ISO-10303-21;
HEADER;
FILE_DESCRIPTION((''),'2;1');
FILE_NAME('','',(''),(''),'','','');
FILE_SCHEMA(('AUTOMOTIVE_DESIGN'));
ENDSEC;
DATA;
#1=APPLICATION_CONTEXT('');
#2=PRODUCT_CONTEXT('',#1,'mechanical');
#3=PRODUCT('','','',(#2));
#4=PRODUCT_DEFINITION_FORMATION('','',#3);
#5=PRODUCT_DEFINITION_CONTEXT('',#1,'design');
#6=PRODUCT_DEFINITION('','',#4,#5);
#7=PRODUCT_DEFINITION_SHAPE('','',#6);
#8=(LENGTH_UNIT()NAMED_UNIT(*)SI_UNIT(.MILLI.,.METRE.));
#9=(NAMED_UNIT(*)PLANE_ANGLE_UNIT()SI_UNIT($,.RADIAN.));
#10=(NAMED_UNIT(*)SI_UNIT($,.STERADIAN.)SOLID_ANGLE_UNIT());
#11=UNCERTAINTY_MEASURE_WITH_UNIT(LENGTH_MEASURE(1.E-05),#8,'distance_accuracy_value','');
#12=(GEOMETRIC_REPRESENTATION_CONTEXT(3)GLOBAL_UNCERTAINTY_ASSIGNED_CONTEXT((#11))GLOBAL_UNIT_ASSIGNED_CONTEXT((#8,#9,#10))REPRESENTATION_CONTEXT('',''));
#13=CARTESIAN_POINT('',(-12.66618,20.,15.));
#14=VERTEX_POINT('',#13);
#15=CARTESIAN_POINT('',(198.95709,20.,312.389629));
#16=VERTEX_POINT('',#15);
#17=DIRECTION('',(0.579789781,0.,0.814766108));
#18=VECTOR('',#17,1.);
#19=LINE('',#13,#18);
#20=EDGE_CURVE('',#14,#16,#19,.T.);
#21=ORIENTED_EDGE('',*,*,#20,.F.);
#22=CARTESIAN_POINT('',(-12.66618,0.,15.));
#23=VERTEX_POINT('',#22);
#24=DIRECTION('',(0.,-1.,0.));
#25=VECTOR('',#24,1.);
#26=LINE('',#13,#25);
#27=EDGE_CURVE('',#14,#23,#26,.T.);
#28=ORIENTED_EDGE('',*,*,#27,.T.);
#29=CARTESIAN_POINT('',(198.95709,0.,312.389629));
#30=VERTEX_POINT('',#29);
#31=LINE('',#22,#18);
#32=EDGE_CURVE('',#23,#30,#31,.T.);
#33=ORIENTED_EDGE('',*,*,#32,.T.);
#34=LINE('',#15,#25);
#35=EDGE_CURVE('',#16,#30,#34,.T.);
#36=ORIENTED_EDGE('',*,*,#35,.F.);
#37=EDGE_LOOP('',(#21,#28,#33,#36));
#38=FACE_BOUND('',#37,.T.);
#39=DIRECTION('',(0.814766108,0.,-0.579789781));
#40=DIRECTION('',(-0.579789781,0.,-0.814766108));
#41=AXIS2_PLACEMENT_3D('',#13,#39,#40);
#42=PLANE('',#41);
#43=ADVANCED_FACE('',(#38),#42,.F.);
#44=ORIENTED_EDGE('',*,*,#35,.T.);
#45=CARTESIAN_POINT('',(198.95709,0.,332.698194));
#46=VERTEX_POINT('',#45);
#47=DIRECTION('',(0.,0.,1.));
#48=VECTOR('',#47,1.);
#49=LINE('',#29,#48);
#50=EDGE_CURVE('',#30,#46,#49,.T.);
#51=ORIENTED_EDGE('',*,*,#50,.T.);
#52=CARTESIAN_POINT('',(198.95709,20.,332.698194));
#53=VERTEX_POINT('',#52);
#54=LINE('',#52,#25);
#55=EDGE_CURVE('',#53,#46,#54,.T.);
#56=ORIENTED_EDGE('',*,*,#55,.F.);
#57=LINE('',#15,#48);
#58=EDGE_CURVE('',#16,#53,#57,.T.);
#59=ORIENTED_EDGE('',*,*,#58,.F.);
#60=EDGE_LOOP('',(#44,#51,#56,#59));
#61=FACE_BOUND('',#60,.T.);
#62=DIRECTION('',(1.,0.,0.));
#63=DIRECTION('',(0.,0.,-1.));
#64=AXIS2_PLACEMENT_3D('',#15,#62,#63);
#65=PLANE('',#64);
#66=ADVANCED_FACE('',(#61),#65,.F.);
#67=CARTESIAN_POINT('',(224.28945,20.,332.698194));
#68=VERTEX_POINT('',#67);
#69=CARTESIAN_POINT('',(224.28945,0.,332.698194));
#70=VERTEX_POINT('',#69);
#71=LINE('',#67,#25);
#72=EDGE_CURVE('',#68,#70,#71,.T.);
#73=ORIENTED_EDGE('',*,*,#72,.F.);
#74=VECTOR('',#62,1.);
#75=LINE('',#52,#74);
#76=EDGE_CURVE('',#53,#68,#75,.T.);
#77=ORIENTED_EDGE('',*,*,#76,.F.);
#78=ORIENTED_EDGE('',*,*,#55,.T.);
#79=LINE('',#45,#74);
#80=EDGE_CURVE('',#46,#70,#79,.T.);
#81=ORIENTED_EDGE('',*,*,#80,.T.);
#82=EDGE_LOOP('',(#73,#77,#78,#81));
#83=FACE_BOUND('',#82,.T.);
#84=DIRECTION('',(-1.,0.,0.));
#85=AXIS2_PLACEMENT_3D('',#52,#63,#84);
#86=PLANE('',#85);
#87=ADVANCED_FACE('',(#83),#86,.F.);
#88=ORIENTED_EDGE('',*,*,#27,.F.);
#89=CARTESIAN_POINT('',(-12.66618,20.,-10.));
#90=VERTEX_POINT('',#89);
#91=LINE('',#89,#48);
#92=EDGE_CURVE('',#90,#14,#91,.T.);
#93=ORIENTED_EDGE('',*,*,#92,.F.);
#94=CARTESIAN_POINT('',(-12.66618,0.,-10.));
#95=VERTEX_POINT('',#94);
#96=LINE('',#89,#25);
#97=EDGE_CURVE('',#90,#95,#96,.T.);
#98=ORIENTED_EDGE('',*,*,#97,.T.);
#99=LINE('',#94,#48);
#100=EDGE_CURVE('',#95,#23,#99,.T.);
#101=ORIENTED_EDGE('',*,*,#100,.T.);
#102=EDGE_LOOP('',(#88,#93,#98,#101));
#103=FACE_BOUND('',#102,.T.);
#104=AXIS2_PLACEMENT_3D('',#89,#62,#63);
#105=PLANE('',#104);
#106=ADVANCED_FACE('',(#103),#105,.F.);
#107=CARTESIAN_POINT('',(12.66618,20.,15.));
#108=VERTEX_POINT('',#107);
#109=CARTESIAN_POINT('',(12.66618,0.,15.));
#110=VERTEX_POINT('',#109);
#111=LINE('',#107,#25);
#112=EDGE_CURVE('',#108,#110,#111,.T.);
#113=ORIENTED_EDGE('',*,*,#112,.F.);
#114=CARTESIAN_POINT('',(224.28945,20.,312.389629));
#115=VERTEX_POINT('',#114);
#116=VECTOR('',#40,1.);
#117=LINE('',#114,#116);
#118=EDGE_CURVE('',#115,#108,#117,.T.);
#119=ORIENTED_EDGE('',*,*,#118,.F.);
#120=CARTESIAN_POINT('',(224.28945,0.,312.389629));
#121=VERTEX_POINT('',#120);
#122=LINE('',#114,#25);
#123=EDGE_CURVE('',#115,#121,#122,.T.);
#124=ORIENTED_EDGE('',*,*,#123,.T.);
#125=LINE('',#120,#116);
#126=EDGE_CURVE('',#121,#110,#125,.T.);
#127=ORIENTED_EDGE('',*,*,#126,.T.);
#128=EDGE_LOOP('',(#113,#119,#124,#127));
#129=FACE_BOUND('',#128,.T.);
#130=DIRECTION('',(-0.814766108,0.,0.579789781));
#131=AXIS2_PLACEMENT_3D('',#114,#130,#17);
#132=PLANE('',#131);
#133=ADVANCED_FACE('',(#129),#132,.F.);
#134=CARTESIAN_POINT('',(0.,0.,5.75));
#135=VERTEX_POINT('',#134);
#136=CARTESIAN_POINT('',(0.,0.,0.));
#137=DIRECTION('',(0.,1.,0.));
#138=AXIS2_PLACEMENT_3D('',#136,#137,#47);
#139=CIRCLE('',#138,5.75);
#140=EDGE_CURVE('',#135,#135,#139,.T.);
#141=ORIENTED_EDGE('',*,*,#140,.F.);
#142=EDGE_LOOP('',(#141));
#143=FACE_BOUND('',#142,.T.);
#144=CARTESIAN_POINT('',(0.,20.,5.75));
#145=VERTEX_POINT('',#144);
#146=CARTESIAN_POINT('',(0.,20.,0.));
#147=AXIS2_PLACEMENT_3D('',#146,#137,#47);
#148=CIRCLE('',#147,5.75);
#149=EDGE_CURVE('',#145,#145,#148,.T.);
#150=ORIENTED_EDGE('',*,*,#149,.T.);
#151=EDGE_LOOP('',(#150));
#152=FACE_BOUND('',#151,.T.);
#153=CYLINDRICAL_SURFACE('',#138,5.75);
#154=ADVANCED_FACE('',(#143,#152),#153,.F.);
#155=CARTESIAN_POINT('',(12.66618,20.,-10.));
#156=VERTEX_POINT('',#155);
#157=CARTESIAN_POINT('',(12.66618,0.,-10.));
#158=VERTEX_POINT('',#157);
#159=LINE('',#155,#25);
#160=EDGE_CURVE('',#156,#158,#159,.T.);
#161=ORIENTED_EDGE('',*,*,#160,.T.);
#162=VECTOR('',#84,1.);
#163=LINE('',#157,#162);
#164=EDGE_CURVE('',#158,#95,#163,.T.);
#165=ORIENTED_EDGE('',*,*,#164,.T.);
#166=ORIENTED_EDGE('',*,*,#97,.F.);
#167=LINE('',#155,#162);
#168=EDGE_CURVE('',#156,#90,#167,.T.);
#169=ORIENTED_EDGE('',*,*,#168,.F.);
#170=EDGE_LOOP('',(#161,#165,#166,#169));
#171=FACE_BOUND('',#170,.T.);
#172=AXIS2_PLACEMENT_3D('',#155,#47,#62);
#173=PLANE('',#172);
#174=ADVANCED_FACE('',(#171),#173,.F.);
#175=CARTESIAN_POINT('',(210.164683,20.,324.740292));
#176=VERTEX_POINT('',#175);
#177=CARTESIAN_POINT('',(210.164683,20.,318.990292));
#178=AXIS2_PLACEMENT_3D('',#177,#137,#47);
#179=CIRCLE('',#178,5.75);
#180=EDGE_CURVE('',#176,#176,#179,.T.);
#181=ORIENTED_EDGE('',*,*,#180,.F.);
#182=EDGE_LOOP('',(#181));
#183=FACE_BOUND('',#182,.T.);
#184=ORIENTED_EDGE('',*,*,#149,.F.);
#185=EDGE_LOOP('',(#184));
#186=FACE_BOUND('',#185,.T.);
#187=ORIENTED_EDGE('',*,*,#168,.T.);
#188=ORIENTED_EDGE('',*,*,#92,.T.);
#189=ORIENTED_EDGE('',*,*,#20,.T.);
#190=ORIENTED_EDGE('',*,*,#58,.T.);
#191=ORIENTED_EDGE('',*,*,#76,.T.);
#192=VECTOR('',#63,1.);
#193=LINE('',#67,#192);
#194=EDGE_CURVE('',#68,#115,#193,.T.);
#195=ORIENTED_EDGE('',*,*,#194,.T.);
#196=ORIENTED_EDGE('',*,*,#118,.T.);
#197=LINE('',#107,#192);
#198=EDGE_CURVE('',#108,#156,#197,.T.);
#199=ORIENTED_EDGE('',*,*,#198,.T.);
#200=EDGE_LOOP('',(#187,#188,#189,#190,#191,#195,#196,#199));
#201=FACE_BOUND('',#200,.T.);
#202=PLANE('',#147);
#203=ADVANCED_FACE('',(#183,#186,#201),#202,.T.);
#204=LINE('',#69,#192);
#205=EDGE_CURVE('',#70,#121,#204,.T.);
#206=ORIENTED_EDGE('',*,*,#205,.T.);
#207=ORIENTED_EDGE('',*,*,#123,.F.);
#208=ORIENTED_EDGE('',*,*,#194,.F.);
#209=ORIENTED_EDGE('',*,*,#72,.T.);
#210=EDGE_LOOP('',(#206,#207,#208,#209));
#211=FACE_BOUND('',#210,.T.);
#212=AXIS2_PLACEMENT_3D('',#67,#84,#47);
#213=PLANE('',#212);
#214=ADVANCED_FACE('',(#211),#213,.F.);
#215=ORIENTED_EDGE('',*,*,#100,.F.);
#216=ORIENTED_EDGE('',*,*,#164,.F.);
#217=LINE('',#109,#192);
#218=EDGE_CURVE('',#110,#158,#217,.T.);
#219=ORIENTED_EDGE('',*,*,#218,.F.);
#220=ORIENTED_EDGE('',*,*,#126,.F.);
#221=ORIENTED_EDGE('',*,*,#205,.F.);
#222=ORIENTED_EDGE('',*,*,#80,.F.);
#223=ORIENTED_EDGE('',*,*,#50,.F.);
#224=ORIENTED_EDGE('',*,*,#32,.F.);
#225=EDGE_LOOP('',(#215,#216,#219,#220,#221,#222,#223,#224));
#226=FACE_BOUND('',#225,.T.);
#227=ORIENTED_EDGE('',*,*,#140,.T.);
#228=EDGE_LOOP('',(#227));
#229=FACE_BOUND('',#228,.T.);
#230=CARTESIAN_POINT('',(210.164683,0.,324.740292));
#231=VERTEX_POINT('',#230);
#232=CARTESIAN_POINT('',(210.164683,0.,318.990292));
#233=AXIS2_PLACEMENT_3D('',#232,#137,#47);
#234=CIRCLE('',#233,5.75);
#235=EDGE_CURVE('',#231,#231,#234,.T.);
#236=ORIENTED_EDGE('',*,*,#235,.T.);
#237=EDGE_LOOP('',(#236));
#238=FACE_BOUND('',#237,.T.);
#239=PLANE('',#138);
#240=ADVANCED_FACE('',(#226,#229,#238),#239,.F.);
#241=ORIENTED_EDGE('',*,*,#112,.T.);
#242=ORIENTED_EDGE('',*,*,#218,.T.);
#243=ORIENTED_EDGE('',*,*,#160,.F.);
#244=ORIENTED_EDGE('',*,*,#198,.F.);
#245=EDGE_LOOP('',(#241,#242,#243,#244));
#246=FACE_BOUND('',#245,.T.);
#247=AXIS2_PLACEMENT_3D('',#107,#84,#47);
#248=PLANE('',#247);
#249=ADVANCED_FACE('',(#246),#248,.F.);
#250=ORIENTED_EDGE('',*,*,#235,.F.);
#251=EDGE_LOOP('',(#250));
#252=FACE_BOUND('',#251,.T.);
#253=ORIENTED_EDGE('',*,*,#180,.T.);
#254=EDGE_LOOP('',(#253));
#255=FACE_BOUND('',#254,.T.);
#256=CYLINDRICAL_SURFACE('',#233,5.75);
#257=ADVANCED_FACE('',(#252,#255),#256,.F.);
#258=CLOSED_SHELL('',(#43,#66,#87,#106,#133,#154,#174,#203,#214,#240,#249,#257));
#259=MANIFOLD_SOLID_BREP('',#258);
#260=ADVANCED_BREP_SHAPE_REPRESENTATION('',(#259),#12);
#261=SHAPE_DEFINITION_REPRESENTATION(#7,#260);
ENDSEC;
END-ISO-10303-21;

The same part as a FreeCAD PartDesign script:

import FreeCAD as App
import Part
import Sketcher

V = App.Vector

doc = App.newDocument("Part")
body = doc.addObject("PartDesign::Body", "Body")

# Sketch on XZ plane
sketch1 = body.newObject("Sketcher::SketchObject", "Sketch")
sketch1.AttachmentSupport = (doc.getObject("XZ_Plane"), [""])
sketch1.MapMode = "FlatFace"
sketch1.addGeometry([
    Part.LineSegment(V(-12.66618, -10, 0), V(-12.66618, 15, 0)),  # 0
    Part.LineSegment(V(-12.66618, 15, 0), V(198.95709, 312.389629, 0)),  # 1
    Part.LineSegment(V(198.95709, 312.389629, 0), V(198.95709, 332.698194, 0)),  # 2
    Part.LineSegment(V(198.95709, 332.698194, 0), V(224.28945, 332.698194, 0)),  # 3
    Part.LineSegment(V(224.28945, 332.698194, 0), V(224.28945, 312.389629, 0)),  # 4
    Part.LineSegment(V(224.28945, 312.389629, 0), V(12.66618, 15, 0)),  # 5
    Part.LineSegment(V(12.66618, 15, 0), V(12.66618, -10, 0)),  # 6
    Part.LineSegment(V(12.66618, -10, 0), V(-12.66618, -10, 0)),  # 7
], False)
sketch1.addConstraint([
    Sketcher.Constraint("Coincident", 0, 2, 1, 1),
    Sketcher.Constraint("Coincident", 1, 2, 2, 1),
    Sketcher.Constraint("Coincident", 2, 2, 3, 1),
    Sketcher.Constraint("Coincident", 3, 2, 4, 1),
    Sketcher.Constraint("Coincident", 4, 2, 5, 1),
    Sketcher.Constraint("Coincident", 5, 2, 6, 1),
    Sketcher.Constraint("Coincident", 6, 2, 7, 1),
    Sketcher.Constraint("Coincident", 7, 2, 0, 1),
    Sketcher.Constraint("Vertical", 0),
    Sketcher.Constraint("Vertical", 2),
    Sketcher.Constraint("Horizontal", 3),
    Sketcher.Constraint("Vertical", 4),
    Sketcher.Constraint("Vertical", 6),
    Sketcher.Constraint("Horizontal", 7),
    Sketcher.Constraint("Symmetric", 0, 2, 5, 2, -2),
    Sketcher.Constraint("Parallel", 1, 5),
    Sketcher.Constraint("Horizontal", 1, 2, 4, 2),
    Sketcher.Constraint("DistanceY", 0, 1, 0, 2, 25.0),
    Sketcher.Constraint("Distance", 1, 365.0),
    Sketcher.Constraint("DistanceY", -1, 1, 0, 2, 15.0),
    Sketcher.Constraint("DistanceX", 3, 1, 3, 2, 25.332359),
    Sketcher.Constraint("DistanceY", 2, 1, 2, 2, 20.308565),
    Sketcher.Constraint("DistanceX", -1, 1, 1, 2, 198.95709),
])
pad1 = body.newObject("PartDesign::Pad", "Pad")
pad1.Profile = sketch1
pad1.Length = 20
pad1.Reversed = True

# Sketch on XZ plane
sketch2 = body.newObject("Sketcher::SketchObject", "Sketch001")
sketch2.AttachmentSupport = (doc.getObject("XZ_Plane"), [""])
sketch2.MapMode = "FlatFace"
sketch2.AttachmentOffset = App.Placement(V(0, 0, -20), App.Rotation())
sketch2.addGeometry([
    Part.Circle(V(0, 0, 0), V(0, 0, 1), 5.75),
    Part.Circle(V(210.164683, 318.990292, 0), V(0, 0, 1), 5.75),
], False)
sketch2.addConstraint([
    Sketcher.Constraint("Coincident", 0, 3, -1, 1),
    Sketcher.Constraint("Equal", 0, 1),
    Sketcher.Constraint("Diameter", 0, 11.5),
    Sketcher.Constraint("DistanceY", -1, 1, 1, 3, 318.990292),
    Sketcher.Constraint("DistanceX", -1, 1, 1, 3, 210.164683),
])
pocket1 = body.newObject("PartDesign::Pocket", "Pocket")
pocket1.Profile = sketch2
pocket1.Type = "ThroughAll"
pocket1.Reversed = True

doc.recompute()
